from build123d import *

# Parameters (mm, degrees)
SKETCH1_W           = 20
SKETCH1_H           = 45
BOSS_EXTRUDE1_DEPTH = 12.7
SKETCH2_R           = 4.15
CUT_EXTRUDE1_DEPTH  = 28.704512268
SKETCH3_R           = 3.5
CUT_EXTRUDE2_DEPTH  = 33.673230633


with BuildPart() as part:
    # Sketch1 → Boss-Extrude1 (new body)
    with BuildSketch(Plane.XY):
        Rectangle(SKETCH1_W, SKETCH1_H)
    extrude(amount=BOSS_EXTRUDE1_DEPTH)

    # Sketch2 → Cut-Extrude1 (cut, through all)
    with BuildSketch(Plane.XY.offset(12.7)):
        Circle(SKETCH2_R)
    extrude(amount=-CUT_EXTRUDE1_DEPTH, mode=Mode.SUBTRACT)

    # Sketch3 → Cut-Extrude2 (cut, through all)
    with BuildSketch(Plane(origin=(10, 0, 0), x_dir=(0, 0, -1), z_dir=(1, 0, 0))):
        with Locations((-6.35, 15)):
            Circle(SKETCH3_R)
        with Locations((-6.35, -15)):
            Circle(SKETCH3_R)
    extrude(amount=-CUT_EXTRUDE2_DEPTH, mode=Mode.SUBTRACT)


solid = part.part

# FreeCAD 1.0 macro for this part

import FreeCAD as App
import Part
import Sketcher

V = App.Vector


def add_polygon(sketch, points):
    """Adds a closed chain of lines whose ends are joined by coincident constraints."""
    first, n = sketch.GeometryCount, len(points)
    for a, b in zip(points, points[1:] + points[:1]):
        sketch.addGeometry(Part.LineSegment(App.Vector(*a, 0), App.Vector(*b, 0)), False)
    for i in range(n):
        sketch.addConstraint(Sketcher.Constraint("Coincident", first + i, 2, first + (i + 1) % n, 1))

doc = App.newDocument("Part")
body = doc.addObject("PartDesign::Body", "Body")

# Sketch on XY plane
sketch1 = doc.addObject("Sketcher::SketchObject", "Sketch")
body.addObject(sketch1)
sketch1.AttachmentSupport = (doc.XY_Plane, [""])
sketch1.MapMode = "FlatFace"
add_polygon(sketch1, [(-10, 22), (-10, -22), (10, -22), (10, 22)])  # lines 0-3
sketch1.addConstraint([
    Sketcher.Constraint("Vertical", 0),
    Sketcher.Constraint("Horizontal", 1),
    Sketcher.Constraint("Vertical", 2),
    Sketcher.Constraint("Horizontal", 3),
    Sketcher.Constraint("Symmetric", 0, 2, 2, 2, -1, 1),
    Sketcher.Constraint("DistanceX", 1, 1, 1, 2, 20.0),
    Sketcher.Constraint("DistanceY", 0, 2, 0, 1, 45.0),
])
pad1 = doc.addObject("PartDesign::Pad", "Pad")
body.addObject(pad1)
pad1.Profile = sketch1
pad1.Length = 12.7

# Sketch on XY plane
sketch2 = doc.addObject("Sketcher::SketchObject", "Sketch001")
body.addObject(sketch2)
sketch2.AttachmentSupport = (doc.XY_Plane, [""])
sketch2.MapMode = "FlatFace"
sketch2.AttachmentOffset = App.Placement(V(0, 0, 12.7), App.Rotation())
sketch2.addGeometry(Part.Circle(V(0, 0, 0), V(0, 0, 1), 4.2), False)
sketch2.addConstraint([
    Sketcher.Constraint("Coincident", 0, 3, -1, 1),
    Sketcher.Constraint("Diameter", 0, 8.3),
])
pocket1 = doc.addObject("PartDesign::Pocket", "Pocket")
body.addObject(pocket1)
pocket1.Profile = sketch2
pocket1.Type = "ThroughAll"

# Sketch on YZ plane
sketch3 = doc.addObject("Sketcher::SketchObject", "Sketch002")
body.addObject(sketch3)
sketch3.AttachmentSupport = (doc.YZ_Plane, [""])
sketch3.MapMode = "FlatFace"
sketch3.AttachmentOffset = App.Placement(V(0, 0, 10), App.Rotation())
sketch3.addGeometry([
    Part.Circle(V(15, 6.3, 0), V(0, 0, 1), 3.5),
    Part.Circle(V(-15, 6.3, 0), V(0, 0, 1), 3.5),
], False)
sketch3.addConstraint([
    Sketcher.Constraint("Equal", 0, 1),
    Sketcher.Constraint("Symmetric", 0, 3, 1, 3, -2),
    Sketcher.Constraint("Diameter", 0, 7.0),
    Sketcher.Constraint("DistanceX", -1, 1, 0, 3, 15.0),
    Sketcher.Constraint("DistanceY", -1, 1, 0, 3, 6.35),
])
pocket2 = doc.addObject("PartDesign::Pocket", "Pocket001")
body.addObject(pocket2)
pocket2.Profile = sketch3
pocket2.Type = "ThroughAll"

doc.recompute()
